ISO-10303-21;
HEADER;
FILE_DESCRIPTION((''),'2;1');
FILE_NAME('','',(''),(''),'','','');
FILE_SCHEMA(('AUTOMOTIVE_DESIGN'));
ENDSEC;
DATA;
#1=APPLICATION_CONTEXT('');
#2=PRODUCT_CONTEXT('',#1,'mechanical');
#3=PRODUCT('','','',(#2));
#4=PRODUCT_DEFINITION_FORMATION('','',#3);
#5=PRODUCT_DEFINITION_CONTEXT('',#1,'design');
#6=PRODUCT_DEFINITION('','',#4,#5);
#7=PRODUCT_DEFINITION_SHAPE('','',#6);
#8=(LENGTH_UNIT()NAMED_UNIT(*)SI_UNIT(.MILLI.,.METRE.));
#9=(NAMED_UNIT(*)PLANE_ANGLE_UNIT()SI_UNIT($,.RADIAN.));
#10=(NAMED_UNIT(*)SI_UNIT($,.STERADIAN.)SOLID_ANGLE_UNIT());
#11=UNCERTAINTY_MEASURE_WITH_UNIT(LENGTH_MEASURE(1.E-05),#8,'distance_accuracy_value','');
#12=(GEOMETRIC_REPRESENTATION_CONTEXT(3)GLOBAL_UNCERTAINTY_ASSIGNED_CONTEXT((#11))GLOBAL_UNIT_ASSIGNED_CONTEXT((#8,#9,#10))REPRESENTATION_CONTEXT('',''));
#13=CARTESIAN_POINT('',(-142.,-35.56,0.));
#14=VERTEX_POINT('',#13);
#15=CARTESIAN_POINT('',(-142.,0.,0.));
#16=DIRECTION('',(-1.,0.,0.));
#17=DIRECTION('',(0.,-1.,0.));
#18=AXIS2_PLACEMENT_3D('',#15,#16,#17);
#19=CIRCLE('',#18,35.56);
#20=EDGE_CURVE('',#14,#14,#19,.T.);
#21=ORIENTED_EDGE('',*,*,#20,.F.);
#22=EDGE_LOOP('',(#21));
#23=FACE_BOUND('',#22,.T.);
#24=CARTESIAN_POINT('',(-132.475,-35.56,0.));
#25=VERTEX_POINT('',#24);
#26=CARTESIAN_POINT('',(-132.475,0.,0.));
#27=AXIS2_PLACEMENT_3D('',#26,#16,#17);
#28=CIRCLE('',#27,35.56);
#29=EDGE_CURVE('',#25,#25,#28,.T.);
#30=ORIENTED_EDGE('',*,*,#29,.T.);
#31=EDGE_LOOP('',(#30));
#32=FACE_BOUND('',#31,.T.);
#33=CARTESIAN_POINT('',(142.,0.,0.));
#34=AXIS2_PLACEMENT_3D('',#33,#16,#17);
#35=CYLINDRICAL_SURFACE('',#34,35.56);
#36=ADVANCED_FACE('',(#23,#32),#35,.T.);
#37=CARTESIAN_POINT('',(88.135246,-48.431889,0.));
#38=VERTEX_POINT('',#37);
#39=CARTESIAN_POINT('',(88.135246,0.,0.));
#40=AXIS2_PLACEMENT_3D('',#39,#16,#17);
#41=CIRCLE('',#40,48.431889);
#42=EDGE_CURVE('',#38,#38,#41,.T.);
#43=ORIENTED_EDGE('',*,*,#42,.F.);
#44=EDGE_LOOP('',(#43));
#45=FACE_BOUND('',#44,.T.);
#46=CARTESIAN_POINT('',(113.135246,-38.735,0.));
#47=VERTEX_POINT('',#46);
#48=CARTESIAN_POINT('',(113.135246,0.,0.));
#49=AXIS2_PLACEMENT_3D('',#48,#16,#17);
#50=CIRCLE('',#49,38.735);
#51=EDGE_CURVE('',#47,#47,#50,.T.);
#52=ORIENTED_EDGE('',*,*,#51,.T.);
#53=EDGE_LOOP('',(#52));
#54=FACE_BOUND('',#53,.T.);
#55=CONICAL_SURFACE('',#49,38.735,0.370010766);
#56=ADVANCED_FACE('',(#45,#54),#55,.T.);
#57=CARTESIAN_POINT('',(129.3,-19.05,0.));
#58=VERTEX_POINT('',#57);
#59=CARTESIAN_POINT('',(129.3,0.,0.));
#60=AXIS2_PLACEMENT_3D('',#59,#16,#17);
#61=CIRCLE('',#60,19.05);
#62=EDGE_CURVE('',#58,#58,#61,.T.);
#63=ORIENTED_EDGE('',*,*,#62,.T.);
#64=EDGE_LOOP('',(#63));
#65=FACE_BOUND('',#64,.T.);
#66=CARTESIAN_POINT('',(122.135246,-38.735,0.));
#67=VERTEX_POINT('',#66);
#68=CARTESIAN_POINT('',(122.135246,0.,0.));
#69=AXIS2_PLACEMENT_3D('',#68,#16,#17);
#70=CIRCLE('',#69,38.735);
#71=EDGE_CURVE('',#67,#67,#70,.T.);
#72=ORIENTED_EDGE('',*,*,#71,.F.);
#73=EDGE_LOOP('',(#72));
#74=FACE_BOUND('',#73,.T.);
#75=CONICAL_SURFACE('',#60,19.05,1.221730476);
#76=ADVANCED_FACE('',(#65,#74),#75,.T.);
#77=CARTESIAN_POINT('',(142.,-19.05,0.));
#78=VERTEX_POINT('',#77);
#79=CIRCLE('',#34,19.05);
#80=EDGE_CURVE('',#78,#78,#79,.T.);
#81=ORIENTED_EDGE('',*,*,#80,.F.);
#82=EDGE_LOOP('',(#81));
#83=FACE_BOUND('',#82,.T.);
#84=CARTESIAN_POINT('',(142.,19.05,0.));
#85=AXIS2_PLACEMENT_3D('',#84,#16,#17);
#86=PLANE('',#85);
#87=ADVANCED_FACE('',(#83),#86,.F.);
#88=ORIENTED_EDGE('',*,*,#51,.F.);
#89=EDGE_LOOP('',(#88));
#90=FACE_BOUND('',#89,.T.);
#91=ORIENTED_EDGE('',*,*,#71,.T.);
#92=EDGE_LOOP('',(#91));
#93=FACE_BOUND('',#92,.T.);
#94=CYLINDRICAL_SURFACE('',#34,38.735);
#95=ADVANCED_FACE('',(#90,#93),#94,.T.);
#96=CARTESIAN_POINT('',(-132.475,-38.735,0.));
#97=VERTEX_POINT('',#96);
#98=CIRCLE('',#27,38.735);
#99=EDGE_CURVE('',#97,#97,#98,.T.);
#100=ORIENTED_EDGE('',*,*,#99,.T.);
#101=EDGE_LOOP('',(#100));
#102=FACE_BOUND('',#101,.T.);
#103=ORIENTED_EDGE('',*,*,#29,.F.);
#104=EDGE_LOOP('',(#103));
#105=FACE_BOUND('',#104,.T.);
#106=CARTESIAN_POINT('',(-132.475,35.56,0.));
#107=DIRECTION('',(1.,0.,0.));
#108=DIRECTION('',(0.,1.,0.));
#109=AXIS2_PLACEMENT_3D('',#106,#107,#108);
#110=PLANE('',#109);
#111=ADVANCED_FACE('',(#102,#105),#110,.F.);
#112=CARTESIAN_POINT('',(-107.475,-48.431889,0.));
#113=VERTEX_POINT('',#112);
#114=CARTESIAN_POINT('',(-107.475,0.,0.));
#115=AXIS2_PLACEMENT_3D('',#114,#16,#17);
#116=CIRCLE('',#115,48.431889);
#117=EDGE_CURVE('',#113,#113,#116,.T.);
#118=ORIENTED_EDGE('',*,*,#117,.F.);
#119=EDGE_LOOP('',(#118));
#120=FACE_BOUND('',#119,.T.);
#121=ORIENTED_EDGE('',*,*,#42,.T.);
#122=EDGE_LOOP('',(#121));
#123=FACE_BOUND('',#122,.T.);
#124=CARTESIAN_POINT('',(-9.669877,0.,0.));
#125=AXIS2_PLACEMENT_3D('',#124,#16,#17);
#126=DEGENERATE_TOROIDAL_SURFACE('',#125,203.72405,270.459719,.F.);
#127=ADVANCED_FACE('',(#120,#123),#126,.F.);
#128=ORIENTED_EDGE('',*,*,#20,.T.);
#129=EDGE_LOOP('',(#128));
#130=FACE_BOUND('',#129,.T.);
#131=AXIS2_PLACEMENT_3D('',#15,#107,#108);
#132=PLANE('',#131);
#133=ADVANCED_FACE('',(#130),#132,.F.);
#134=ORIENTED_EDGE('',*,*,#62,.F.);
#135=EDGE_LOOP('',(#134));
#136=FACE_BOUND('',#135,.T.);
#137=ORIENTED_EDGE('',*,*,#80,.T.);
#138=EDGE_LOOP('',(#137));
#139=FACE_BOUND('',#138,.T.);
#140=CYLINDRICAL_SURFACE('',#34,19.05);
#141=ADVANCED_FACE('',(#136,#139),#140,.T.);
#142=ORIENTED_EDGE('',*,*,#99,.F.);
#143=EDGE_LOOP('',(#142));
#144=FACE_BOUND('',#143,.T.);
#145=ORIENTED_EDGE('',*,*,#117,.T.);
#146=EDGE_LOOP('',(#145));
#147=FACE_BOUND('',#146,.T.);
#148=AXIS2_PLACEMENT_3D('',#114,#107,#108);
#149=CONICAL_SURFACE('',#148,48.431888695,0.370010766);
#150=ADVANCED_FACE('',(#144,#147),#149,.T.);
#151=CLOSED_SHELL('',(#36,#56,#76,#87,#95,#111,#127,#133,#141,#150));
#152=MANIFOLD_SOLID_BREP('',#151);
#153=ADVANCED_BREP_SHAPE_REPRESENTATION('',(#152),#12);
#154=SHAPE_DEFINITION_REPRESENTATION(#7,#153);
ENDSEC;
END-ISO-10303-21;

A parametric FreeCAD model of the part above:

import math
import FreeCAD as App
import Part
import Sketcher
from FreeCAD import Vector
Q = App.Units.Quantity

doc = App.newDocument("Part")
body = doc.addObject("PartDesign::Body", "Body")

sketch1 = body.newObject("Sketcher::SketchObject", "Sketch")
sketch1.AttachmentSupport = (doc.getObject("XY_Plane"), [""])
sketch1.MapMode = "FlatFace"
sketch1.addGeometry([
    Part.LineSegment(Vector(-132.5, 35.6, 0), Vector(-142, 35.6, 0)),
    Part.LineSegment(Vector(-142, 35.6, 0), Vector(-142, 0, 0)),
    Part.LineSegment(Vector(-142, 0, 0), Vector(142, 0, 0)),
    Part.LineSegment(Vector(142, 0, 0), Vector(142, 19.1, 0)),
    Part.LineSegment(Vector(142, 19.1, 0), Vector(129.3, 19.1, 0)),
    Part.LineSegment(Vector(129.3, 19.1, 0), Vector(122.1, 38.7, 0)),
    Part.LineSegment(Vector(122.1, 38.7, 0), Vector(113.1, 38.7, 0)),
    Part.LineSegment(Vector(113.1, 38.7, 0), Vector(88.1, 48.4, 0)),
    Part.ArcOfCircle(Part.Circle(Vector(-9.7, -203.7, 0), Vector(0, 0, 1), 270.5), math.radians(69), math.radians(111)),
    Part.LineSegment(Vector(-107.5, 48.4, 0), Vector(-132.5, 38.7, 0)),
    Part.LineSegment(Vector(-132.5, 38.7, 0), Vector(-132.5, 35.6, 0)),
], False)
sketch1.addConstraint([
    Sketcher.Constraint("Coincident", 0, 2, 1, 1),
    Sketcher.Constraint("Coincident", 1, 2, 2, 1),
    Sketcher.Constraint("Coincident", 2, 2, 3, 1),
    Sketcher.Constraint("Coincident", 3, 2, 4, 1),
    Sketcher.Constraint("Coincident", 4, 2, 5, 1),
    Sketcher.Constraint("Coincident", 5, 2, 6, 1),
    Sketcher.Constraint("Coincident", 6, 2, 7, 1),
    Sketcher.Constraint("Tangent", 7, 2, 8, 1),
    Sketcher.Constraint("Tangent", 8, 2, 9, 1),
    Sketcher.Constraint("Coincident", 9, 2, 10, 1),
    Sketcher.Constraint("Coincident", 10, 2, 0, 1),
    Sketcher.Constraint("Horizontal", 0),
    Sketcher.Constraint("Vertical", 1),
    Sketcher.Constraint("Horizontal", 2),
    Sketcher.Constraint("Vertical", 3),
    Sketcher.Constraint("Horizontal", 4),
    Sketcher.Constraint("Horizontal", 6),
    Sketcher.Constraint("Vertical", 10),
    Sketcher.Constraint("Symmetric", 1, 2, 2, 2, -1, 1),
    Sketcher.Constraint("Horizontal", 7, 2, 8, 2),
    Sketcher.Constraint("Horizontal", 6, 2, 9, 2),
    Sketcher.Constraint("DistanceX", 4, 2, 4, 1, Q("0.5 in")),
    Sketcher.Constraint("DistanceY", 1, 2, 1, 1, Q("1.4 in")),
    Sketcher.Constraint("Angle", 5, Q("110 deg")),
    Sketcher.Constraint("DistanceY", 3, 1, 3, 2, Q("0.75 in")),
    Sketcher.Constraint("DistanceX", 0, 2, 0, 1, Q("0.375 in")),
    Sketcher.Constraint("DistanceY", 10, 2, 10, 1, Q("0.125 in")),
    Sketcher.Constraint("Radius", 8, 270.459719),
    Sketcher.Constraint("DistanceX", 2, 1, 2, 2, 284.0),
    Sketcher.Constraint("DistanceX", 6, 2, 6, 1, 9.0),
    Sketcher.Constraint("DistanceX", 8, 2, -1, 1, 107.475),
])
revolution = body.newObject("PartDesign::Revolution", "Revolution")
revolution.Profile = sketch1
revolution.ReferenceAxis = (sketch1, ["H_Axis"])
revolution.Angle = 360

doc.recompute()
